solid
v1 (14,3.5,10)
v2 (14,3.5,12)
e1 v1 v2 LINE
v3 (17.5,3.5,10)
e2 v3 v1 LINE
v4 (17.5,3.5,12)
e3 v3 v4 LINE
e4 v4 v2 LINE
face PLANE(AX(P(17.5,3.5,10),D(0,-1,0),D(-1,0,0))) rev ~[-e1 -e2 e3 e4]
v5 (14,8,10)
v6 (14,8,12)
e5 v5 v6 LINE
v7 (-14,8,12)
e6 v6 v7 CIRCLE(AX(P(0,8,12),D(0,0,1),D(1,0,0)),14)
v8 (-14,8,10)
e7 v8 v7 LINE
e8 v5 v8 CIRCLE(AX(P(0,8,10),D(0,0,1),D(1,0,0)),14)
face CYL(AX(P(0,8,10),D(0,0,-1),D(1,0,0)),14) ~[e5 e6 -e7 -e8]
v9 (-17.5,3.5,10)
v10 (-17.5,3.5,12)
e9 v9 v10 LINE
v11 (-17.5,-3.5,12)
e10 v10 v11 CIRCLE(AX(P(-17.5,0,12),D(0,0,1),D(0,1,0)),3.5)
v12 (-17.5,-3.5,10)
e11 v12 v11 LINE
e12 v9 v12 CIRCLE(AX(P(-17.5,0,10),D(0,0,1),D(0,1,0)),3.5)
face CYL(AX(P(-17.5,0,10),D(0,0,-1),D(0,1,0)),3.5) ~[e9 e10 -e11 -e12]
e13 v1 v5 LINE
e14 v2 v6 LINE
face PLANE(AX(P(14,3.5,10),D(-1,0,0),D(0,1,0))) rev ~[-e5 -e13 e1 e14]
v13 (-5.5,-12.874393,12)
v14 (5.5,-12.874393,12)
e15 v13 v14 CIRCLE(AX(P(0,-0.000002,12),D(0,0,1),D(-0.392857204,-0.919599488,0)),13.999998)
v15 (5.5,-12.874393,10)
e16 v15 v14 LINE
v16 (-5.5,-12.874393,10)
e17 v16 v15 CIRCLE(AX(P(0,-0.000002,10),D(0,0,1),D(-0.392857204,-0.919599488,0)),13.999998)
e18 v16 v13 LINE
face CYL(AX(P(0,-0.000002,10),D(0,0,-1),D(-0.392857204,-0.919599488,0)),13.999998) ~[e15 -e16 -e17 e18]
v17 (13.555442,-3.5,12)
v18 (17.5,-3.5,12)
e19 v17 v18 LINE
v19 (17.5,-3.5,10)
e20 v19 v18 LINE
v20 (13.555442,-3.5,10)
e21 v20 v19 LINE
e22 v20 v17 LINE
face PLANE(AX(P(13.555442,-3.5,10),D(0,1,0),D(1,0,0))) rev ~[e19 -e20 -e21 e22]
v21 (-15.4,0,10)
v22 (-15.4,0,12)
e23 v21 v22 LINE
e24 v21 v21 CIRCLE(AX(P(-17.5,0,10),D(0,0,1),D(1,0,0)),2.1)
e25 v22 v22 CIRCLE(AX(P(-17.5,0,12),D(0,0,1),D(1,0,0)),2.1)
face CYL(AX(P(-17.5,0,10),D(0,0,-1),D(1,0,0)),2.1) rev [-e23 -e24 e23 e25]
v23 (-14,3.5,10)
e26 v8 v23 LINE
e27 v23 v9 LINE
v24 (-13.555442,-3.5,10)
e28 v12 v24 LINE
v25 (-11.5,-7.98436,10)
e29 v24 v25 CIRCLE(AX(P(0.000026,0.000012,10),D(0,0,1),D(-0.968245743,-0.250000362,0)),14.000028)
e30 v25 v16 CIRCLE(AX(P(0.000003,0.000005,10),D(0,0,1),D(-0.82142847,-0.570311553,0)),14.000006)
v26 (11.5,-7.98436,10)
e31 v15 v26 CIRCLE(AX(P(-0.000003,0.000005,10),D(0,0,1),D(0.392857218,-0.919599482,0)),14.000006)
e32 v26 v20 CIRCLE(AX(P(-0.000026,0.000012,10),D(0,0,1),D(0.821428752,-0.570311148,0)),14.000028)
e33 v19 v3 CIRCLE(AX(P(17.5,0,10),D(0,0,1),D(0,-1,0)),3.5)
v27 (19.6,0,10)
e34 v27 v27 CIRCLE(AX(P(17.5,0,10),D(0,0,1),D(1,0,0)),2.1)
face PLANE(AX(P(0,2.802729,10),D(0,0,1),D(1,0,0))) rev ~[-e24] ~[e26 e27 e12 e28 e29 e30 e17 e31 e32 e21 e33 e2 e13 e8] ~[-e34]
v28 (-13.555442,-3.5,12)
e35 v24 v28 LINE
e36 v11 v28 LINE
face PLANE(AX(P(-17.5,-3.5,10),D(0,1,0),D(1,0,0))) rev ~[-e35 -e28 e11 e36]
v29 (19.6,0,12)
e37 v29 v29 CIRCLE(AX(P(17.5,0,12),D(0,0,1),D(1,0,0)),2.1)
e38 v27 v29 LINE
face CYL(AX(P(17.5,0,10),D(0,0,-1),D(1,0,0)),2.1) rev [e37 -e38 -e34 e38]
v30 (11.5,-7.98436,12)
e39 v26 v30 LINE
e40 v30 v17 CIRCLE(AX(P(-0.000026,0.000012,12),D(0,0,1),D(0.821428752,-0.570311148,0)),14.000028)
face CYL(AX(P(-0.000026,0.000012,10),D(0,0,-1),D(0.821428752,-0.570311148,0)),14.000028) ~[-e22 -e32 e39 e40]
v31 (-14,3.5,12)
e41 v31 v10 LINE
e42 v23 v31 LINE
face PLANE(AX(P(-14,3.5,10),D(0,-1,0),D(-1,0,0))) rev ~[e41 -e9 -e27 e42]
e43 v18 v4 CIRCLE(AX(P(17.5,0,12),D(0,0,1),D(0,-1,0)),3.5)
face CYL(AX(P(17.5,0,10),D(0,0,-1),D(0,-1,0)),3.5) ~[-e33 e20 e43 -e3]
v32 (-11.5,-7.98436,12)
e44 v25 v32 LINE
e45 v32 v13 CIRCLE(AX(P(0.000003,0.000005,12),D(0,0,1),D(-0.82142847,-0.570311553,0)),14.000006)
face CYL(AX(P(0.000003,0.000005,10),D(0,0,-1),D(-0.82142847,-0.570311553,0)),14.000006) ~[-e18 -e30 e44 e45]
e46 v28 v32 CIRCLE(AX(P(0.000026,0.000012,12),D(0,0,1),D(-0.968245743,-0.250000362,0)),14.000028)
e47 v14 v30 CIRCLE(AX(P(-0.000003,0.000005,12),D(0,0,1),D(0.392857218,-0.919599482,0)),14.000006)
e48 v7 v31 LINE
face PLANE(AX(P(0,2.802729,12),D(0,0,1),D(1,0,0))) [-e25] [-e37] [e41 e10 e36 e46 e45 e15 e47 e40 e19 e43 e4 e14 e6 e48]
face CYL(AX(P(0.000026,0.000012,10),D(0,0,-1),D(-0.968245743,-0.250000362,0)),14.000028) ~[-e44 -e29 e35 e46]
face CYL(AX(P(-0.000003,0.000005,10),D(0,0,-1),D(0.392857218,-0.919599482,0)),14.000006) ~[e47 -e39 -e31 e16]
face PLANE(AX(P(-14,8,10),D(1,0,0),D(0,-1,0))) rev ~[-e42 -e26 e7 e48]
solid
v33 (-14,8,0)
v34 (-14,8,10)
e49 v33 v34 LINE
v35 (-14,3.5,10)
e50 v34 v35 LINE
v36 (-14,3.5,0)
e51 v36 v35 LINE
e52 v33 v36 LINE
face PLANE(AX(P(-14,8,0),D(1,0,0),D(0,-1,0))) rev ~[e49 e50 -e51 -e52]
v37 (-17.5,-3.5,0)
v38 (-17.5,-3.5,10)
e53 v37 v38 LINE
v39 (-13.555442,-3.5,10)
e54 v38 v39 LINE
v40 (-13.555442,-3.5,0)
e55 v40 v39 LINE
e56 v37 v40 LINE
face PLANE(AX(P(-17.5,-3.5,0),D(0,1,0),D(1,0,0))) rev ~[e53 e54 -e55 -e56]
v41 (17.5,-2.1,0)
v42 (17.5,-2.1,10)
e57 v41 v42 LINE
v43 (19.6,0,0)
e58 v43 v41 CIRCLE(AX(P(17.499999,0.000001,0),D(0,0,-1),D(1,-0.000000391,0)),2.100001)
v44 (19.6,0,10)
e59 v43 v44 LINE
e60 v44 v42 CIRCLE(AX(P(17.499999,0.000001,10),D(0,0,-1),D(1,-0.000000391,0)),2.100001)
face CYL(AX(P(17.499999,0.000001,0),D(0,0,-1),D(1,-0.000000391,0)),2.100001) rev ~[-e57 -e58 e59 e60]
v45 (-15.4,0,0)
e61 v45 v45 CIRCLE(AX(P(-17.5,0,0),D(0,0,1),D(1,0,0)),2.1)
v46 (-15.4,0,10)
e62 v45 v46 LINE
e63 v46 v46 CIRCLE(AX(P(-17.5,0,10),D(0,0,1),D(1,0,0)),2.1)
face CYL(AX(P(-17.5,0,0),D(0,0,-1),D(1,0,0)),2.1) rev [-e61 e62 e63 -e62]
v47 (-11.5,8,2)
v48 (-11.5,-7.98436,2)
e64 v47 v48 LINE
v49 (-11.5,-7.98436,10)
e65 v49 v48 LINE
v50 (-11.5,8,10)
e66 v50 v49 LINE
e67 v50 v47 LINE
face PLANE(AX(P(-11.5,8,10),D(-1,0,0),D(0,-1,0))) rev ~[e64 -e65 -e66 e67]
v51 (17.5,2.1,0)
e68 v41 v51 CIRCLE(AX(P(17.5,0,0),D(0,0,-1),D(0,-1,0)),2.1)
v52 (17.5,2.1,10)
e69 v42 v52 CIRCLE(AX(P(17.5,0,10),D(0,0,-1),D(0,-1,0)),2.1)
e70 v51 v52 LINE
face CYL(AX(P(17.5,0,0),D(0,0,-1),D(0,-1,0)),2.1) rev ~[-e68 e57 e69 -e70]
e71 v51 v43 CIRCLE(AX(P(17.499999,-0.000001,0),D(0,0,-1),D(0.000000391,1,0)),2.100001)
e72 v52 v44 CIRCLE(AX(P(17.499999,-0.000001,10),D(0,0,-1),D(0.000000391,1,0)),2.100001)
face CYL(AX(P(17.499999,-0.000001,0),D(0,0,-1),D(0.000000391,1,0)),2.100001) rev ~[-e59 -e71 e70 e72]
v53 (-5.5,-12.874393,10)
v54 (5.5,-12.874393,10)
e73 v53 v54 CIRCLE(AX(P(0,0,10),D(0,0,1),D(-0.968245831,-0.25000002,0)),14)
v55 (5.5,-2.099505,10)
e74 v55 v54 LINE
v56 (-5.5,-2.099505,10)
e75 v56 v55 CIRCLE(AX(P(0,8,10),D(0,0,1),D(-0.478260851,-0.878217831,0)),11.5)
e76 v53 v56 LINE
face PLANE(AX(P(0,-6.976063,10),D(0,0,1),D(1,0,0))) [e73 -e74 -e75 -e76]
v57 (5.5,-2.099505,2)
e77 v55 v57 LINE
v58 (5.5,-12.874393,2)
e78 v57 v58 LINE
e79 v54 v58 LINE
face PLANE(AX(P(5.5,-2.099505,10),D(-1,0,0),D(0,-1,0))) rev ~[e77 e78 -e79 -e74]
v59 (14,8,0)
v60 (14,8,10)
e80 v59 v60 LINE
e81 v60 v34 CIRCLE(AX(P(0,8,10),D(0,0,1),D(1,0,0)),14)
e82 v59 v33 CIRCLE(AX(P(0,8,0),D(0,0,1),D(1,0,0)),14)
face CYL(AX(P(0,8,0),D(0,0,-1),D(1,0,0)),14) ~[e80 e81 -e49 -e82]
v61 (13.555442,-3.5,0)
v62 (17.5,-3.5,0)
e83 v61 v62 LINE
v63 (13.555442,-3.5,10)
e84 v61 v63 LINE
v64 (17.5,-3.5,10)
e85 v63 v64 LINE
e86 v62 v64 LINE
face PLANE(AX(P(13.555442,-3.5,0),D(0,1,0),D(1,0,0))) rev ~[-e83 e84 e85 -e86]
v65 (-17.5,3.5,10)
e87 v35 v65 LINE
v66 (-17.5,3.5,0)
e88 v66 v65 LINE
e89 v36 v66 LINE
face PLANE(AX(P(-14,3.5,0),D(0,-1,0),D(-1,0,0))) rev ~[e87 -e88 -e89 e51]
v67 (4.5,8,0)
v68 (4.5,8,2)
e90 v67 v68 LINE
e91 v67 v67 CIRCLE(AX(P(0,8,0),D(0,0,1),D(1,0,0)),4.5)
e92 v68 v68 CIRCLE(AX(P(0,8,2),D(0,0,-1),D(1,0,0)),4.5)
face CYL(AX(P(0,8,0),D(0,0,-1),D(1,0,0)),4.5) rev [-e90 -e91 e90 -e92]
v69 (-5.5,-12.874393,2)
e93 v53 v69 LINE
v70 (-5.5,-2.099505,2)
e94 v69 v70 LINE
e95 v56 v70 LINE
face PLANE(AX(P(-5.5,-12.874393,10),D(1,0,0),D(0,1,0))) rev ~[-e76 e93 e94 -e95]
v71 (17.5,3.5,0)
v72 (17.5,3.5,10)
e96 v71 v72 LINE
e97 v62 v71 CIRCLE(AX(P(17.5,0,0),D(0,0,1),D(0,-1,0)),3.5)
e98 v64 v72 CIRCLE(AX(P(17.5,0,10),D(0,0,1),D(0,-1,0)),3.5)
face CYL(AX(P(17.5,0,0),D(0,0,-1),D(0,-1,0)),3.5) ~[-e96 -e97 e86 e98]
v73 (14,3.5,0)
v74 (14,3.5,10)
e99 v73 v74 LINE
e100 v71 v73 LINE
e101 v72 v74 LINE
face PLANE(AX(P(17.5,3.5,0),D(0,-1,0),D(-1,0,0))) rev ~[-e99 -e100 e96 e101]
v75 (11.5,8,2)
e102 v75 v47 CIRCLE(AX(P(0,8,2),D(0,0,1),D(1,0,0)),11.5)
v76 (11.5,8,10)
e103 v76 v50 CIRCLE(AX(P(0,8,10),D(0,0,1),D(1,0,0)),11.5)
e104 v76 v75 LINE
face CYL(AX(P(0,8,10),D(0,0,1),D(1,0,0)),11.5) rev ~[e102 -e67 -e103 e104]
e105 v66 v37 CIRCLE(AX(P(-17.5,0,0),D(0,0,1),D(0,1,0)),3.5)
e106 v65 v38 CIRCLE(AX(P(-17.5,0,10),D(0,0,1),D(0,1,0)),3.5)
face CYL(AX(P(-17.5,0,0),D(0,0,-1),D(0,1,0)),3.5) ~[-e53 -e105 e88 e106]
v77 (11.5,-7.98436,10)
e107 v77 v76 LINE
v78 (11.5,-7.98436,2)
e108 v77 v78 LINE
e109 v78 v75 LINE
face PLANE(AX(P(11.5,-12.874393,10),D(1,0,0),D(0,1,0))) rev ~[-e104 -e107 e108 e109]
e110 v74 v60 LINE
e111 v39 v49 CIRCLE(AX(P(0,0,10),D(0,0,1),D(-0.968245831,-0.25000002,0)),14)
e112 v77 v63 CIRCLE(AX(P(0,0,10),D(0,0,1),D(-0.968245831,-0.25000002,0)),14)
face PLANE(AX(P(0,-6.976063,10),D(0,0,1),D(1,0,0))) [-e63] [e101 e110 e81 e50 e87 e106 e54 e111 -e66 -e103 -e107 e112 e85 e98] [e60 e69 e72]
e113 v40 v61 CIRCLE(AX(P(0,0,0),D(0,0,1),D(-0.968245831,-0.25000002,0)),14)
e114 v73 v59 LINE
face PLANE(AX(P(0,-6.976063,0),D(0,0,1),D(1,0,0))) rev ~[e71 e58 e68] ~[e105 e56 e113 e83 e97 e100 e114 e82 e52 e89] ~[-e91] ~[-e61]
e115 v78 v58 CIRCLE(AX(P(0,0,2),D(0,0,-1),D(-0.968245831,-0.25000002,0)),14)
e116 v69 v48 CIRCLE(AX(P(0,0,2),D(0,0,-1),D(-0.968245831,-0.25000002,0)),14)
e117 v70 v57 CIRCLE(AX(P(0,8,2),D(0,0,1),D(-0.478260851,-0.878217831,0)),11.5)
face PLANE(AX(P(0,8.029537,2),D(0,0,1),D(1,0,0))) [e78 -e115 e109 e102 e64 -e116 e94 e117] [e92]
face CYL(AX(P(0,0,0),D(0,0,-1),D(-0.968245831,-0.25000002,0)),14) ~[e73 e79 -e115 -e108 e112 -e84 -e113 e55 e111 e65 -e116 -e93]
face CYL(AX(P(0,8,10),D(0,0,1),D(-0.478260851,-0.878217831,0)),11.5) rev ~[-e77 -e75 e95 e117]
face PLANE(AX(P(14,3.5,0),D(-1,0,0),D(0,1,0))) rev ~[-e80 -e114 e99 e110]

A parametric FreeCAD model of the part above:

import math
import FreeCAD as App
import Part
import Sketcher

V = App.Vector

doc = App.newDocument("Part")
body = doc.addObject("PartDesign::Body", "Body")

# Sketch on XY plane
sketch1 = doc.addObject("Sketcher::SketchObject", "Sketch")
body.addObject(sketch1)
sketch1.AttachmentSupport = (doc.XY_Plane, [""])
sketch1.MapMode = "FlatFace"
sketch1.addGeometry([
    Part.ArcOfCircle(Part.Circle(V(0, 0, 0), V(0, 0, 1), 14), math.radians(-166), math.radians(-14)),  # 0
    Part.LineSegment(V(13.6, -3.5, 0), V(17.5, -3.5, 0)),  # 1
    Part.ArcOfCircle(Part.Circle(V(17.5, 0, 0), V(0, 0, 1), 3.5), math.radians(-90), math.radians(90)),  # 2
    Part.LineSegment(V(17.5, 3.5, 0), V(14, 3.5, 0)),  # 3
    Part.LineSegment(V(14, 3.5, 0), V(14, 8, 0)),  # 4
    Part.ArcOfCircle(Part.Circle(V(0, 8, 0), V(0, 0, 1), 14), math.radians(0), math.radians(180)),  # 5
    Part.LineSegment(V(-14, 8, 0), V(-14, 3.5, 0)),  # 6
    Part.LineSegment(V(-14, 3.5, 0), V(-17.5, 3.5, 0)),  # 7
    Part.ArcOfCircle(Part.Circle(V(-17.5, 0, 0), V(0, 0, 1), 3.5), math.radians(90), math.radians(270)),  # 8
    Part.LineSegment(V(-17.5, -3.5, 0), V(-13.6, -3.5, 0)),  # 9
    Part.ArcOfCircle(Part.Circle(V(17.5, 0, 0), V(0, 0, 1), 2.1), math.radians(90), math.radians(270)),  # 10
    Part.ArcOfCircle(Part.Circle(V(17.5, 0, 0), V(0, 0, 1), 2.1), math.radians(0), math.radians(90)),  # 11
    Part.ArcOfCircle(Part.Circle(V(17.5, 0, 0), V(0, 0, 1), 2.1), math.radians(-90), math.radians(0)),  # 12
    Part.Circle(V(-17.5, 0, 0), V(0, 0, 1), 2.1),  # 13
    Part.Circle(V(0, 8, 0), V(0, 0, 1), 4.5),  # 14
], False)
sketch1.addConstraint([
    Sketcher.Constraint("Coincident", 0, 2, 1, 1),
    Sketcher.Constraint("Tangent", 1, 2, 2, 1),
    Sketcher.Constraint("Tangent", 2, 2, 3, 1),
    Sketcher.Constraint("Coincident", 3, 2, 4, 1),
    Sketcher.Constraint("Tangent", 4, 2, 5, 1),
    Sketcher.Constraint("Tangent", 5, 2, 6, 1),
    Sketcher.Constraint("Coincident", 6, 2, 7, 1),
    Sketcher.Constraint("Tangent", 7, 2, 8, 1),
    Sketcher.Constraint("Tangent", 8, 2, 9, 1),
    Sketcher.Constraint("Coincident", 9, 2, 0, 1),
    Sketcher.Constraint("Tangent", 10, 1, 11, 2),
    Sketcher.Constraint("Tangent", 11, 1, 12, 2),
    Sketcher.Constraint("Tangent", 12, 1, 10, 2),
    Sketcher.Constraint("Horizontal", 1),
    Sketcher.Constraint("Horizontal", 3),
    Sketcher.Constraint("Vertical", 4),
    Sketcher.Constraint("Vertical", 6),
    Sketcher.Constraint("Horizontal", 7),
    Sketcher.Constraint("Horizontal", 9),
    Sketcher.Constraint("Coincident", 0, 3, -1, 1),
    Sketcher.Constraint("Coincident", 10, 3, 2, 3),
    Sketcher.Constraint("Coincident", 13, 3, 8, 3),
    Sketcher.Constraint("Coincident", 14, 3, 5, 3),
    Sketcher.Constraint("Equal", 0, 5),
    Sketcher.Constraint("Equal", 2, 8),
    Sketcher.Constraint("Equal", 12, 13),
    Sketcher.Constraint("Symmetric", 2, 3, 8, 3, -1, 1),
    Sketcher.Constraint("Symmetric", 3, 2, 6, 2, -2),
    Sketcher.Constraint("PointOnObject", 11, 1, -1),
    Sketcher.Constraint("Vertical", 2, 2, 10, 1),
    Sketcher.Constraint("Vertical", 10, 1, 12, 1),
    Sketcher.Constraint("Diameter", 14, 9.0),
    Sketcher.Constraint("Radius", 0, 14.0),
    Sketcher.Constraint("Diameter", 13, 4.2),
    Sketcher.Constraint("Radius", 2, 3.5),
    Sketcher.Constraint("DistanceX", 3, 2, 3, 1, 3.5),
    Sketcher.Constraint("DistanceY", 4, 1, 4, 2, 4.5),
])
pad1 = doc.addObject("PartDesign::Pad", "Pad")
body.addObject(pad1)
pad1.Profile = sketch1
pad1.Length = 10

# Sketch on XY plane
sketch2 = doc.addObject("Sketcher::SketchObject", "Sketch001")
body.addObject(sketch2)
sketch2.AttachmentSupport = (doc.XY_Plane, [""])
sketch2.MapMode = "FlatFace"
sketch2.AttachmentOffset = App.Placement(V(0, 0, 10), App.Rotation())
sketch2.addGeometry([
    Part.ArcOfCircle(Part.Circle(V(0, 8, 0), V(0, 0, 1), 12), math.radians(-119), math.radians(-61)),  # 0
    Part.LineSegment(V(6, -2, 0), V(6, -13, 0)),  # 1
    Part.LineSegment(V(6, -13, 0), V(12, -13, 0)),  # 2
    Part.LineSegment(V(12, -13, 0), V(12, 8, 0)),  # 3
    Part.ArcOfCircle(Part.Circle(V(0, 8, 0), V(0, 0, 1), 12), math.radians(0), math.radians(180)),  # 4
    Part.LineSegment(V(-12, 8, 0), V(-12, -13, 0)),  # 5
    Part.LineSegment(V(-12, -13, 0), V(-6, -13, 0)),  # 6
    Part.LineSegment(V(-6, -13, 0), V(-6, -2, 0)),  # 7
], False)
sketch2.addConstraint([
    Sketcher.Constraint("Coincident", 0, 2, 1, 1),
    Sketcher.Constraint("Coincident", 1, 2, 2, 1),
    Sketcher.Constraint("Coincident", 2, 2, 3, 1),
    Sketcher.Constraint("Tangent", 3, 2, 4, 1),
    Sketcher.Constraint("Tangent", 4, 2, 5, 1),
    Sketcher.Constraint("Coincident", 5, 2, 6, 1),
    Sketcher.Constraint("Coincident", 6, 2, 7, 1),
    Sketcher.Constraint("Coincident", 7, 2, 0, 1),
    Sketcher.Constraint("Vertical", 1),
    Sketcher.Constraint("Horizontal", 2),
    Sketcher.Constraint("Vertical", 3),
    Sketcher.Constraint("Vertical", 5),
    Sketcher.Constraint("Horizontal", 6),
    Sketcher.Constraint("Vertical", 7),
    Sketcher.Constraint("Coincident", 4, 3, 0, 3),
    Sketcher.Constraint("Equal", 0, 4),
    Sketcher.Constraint("Symmetric", 2, 2, 5, 2, -2),
    Sketcher.Constraint("Horizontal", 0, 2, 7, 2),
    Sketcher.Constraint("Radius", 0, 11.5),
    Sketcher.Constraint("DistanceX", 2, 1, 2, 2, 6.0),
    Sketcher.Constraint("DistanceY", -1, 1, 0, 3, 8.0),
    Sketcher.Constraint("DistanceY", 1, 2, 1, 1, 10.774888),
])
pocket1 = doc.addObject("PartDesign::Pocket", "Pocket")
body.addObject(pocket1)
pocket1.Profile = sketch2
pocket1.Length = 8
body2 = doc.addObject("PartDesign::Body", "Body001")

# Sketch on XY plane
sketch3 = doc.addObject("Sketcher::SketchObject", "Sketch002")
body2.addObject(sketch3)
sketch3.AttachmentSupport = (doc.getObject("XY_Plane001"), [""])
sketch3.MapMode = "FlatFace"
sketch3.AttachmentOffset = App.Placement(V(0, 0, 10), App.Rotation())
sketch3.addGeometry([
    Part.LineSegment(V(13.6, -3.5, 0), V(17.5, -3.5, 0)),  # 0
    Part.ArcOfCircle(Part.Circle(V(17.5, 0, 0), V(0, 0, 1), 3.5), math.radians(-90), math.radians(90)),  # 1
    Part.LineSegment(V(17.5, 3.5, 0), V(14, 3.5, 0)),  # 2
    Part.LineSegment(V(14, 3.5, 0), V(14, 8, 0)),  # 3
    Part.ArcOfCircle(Part.Circle(V(0, 8, 0), V(0, 0, 1), 14), math.radians(0), math.radians(180)),  # 4
    Part.LineSegment(V(-14, 8, 0), V(-14, 3.5, 0)),  # 5
    Part.LineSegment(V(-14, 3.5, 0), V(-17.5, 3.5, 0)),  # 6
    Part.ArcOfCircle(Part.Circle(V(-17.5, 0, 0), V(0, 0, 1), 3.5), math.radians(90), math.radians(270)),  # 7
    Part.LineSegment(V(-17.5, -3.5, 0), V(-13.6, -3.5, 0)),  # 8
    Part.ArcOfCircle(Part.Circle(V(0, 0, 0), V(0, 0, 1), 14), math.radians(-166), math.radians(-145)),  # 9
    Part.ArcOfCircle(Part.Circle(V(0, 0, 0), V(0, 0, 1), 14), math.radians(-145), math.radians(-113)),  # 10
    Part.ArcOfCircle(Part.Circle(V(0, 0, 0), V(0, 0, 1), 14), math.radians(-113), math.radians(-67)),  # 11
    Part.ArcOfCircle(Part.Circle(V(0, 0, 0), V(0, 0, 1), 14), math.radians(-67), math.radians(-35)),  # 12
    Part.ArcOfCircle(Part.Circle(V(0, 0, 0), V(0, 0, 1), 14), math.radians(-35), math.radians(-14)),  # 13
    Part.Circle(V(-17.5, 0, 0), V(0, 0, 1), 2.1),  # 14
    Part.Circle(V(17.5, 0, 0), V(0, 0, 1), 2.1),  # 15
], False)
sketch3.addConstraint([
    Sketcher.Constraint("Tangent", 0, 2, 1, 1),
    Sketcher.Constraint("Tangent", 1, 2, 2, 1),
    Sketcher.Constraint("Coincident", 2, 2, 3, 1),
    Sketcher.Constraint("Tangent", 3, 2, 4, 1),
    Sketcher.Constraint("Tangent", 4, 2, 5, 1),
    Sketcher.Constraint("Coincident", 5, 2, 6, 1),
    Sketcher.Constraint("Tangent", 6, 2, 7, 1),
    Sketcher.Constraint("Tangent", 7, 2, 8, 1),
    Sketcher.Constraint("Coincident", 8, 2, 9, 1),
    Sketcher.Constraint("Tangent", 9, 2, 10, 1),
    Sketcher.Constraint("Tangent", 10, 2, 11, 1),
    Sketcher.Constraint("Tangent", 11, 2, 12, 1),
    Sketcher.Constraint("Tangent", 12, 2, 13, 1),
    Sketcher.Constraint("Coincident", 13, 2, 0, 1),
    Sketcher.Constraint("Horizontal", 0),
    Sketcher.Constraint("Horizontal", 2),
    Sketcher.Constraint("Vertical", 3),
    Sketcher.Constraint("Vertical", 5),
    Sketcher.Constraint("Horizontal", 6),
    Sketcher.Constraint("Horizontal", 8),
    Sketcher.Constraint("Coincident", 10, 3, -1, 1),
    Sketcher.Constraint("Coincident", 12, 3, -1, 1),
    Sketcher.Constraint("Coincident", 14, 3, 7, 3),
    Sketcher.Constraint("Coincident", 15, 3, 1, 3),
    Sketcher.Constraint("Equal", 1, 7),
    Sketcher.Constraint("Equal", 9, 13),
    Sketcher.Constraint("Equal", 14, 15),
    Sketcher.Constraint("Symmetric", 1, 3, 7, 3, -1, 1),
    Sketcher.Constraint("Symmetric", 2, 2, 5, 2, -2),
    Sketcher.Constraint("Horizontal", 10, 2, 11, 2),
    Sketcher.Constraint("Horizontal", 9, 2, 12, 2),
    Sketcher.Constraint("Radius", 4, 14.0),
    Sketcher.Constraint("Diameter", 14, 4.2),
    Sketcher.Constraint("Radius", 1, 3.5),
    Sketcher.Constraint("DistanceX", 2, 2, 2, 1, 3.5),
    Sketcher.Constraint("DistanceY", 3, 1, 3, 2, 4.5),
    Sketcher.Constraint("DistanceX", 7, 2, 9, 2, 6.0),
    Sketcher.Constraint("DistanceX", 9, 2, 10, 2, 6.0),
    Sketcher.Constraint("Radius", 9, 14.000028),
    Sketcher.Constraint("Radius", 10, 14.000006),
])
pad2 = doc.addObject("PartDesign::Pad", "Pad001")
body2.addObject(pad2)
pad2.Profile = sketch3
pad2.Length = 2

doc.recompute()
